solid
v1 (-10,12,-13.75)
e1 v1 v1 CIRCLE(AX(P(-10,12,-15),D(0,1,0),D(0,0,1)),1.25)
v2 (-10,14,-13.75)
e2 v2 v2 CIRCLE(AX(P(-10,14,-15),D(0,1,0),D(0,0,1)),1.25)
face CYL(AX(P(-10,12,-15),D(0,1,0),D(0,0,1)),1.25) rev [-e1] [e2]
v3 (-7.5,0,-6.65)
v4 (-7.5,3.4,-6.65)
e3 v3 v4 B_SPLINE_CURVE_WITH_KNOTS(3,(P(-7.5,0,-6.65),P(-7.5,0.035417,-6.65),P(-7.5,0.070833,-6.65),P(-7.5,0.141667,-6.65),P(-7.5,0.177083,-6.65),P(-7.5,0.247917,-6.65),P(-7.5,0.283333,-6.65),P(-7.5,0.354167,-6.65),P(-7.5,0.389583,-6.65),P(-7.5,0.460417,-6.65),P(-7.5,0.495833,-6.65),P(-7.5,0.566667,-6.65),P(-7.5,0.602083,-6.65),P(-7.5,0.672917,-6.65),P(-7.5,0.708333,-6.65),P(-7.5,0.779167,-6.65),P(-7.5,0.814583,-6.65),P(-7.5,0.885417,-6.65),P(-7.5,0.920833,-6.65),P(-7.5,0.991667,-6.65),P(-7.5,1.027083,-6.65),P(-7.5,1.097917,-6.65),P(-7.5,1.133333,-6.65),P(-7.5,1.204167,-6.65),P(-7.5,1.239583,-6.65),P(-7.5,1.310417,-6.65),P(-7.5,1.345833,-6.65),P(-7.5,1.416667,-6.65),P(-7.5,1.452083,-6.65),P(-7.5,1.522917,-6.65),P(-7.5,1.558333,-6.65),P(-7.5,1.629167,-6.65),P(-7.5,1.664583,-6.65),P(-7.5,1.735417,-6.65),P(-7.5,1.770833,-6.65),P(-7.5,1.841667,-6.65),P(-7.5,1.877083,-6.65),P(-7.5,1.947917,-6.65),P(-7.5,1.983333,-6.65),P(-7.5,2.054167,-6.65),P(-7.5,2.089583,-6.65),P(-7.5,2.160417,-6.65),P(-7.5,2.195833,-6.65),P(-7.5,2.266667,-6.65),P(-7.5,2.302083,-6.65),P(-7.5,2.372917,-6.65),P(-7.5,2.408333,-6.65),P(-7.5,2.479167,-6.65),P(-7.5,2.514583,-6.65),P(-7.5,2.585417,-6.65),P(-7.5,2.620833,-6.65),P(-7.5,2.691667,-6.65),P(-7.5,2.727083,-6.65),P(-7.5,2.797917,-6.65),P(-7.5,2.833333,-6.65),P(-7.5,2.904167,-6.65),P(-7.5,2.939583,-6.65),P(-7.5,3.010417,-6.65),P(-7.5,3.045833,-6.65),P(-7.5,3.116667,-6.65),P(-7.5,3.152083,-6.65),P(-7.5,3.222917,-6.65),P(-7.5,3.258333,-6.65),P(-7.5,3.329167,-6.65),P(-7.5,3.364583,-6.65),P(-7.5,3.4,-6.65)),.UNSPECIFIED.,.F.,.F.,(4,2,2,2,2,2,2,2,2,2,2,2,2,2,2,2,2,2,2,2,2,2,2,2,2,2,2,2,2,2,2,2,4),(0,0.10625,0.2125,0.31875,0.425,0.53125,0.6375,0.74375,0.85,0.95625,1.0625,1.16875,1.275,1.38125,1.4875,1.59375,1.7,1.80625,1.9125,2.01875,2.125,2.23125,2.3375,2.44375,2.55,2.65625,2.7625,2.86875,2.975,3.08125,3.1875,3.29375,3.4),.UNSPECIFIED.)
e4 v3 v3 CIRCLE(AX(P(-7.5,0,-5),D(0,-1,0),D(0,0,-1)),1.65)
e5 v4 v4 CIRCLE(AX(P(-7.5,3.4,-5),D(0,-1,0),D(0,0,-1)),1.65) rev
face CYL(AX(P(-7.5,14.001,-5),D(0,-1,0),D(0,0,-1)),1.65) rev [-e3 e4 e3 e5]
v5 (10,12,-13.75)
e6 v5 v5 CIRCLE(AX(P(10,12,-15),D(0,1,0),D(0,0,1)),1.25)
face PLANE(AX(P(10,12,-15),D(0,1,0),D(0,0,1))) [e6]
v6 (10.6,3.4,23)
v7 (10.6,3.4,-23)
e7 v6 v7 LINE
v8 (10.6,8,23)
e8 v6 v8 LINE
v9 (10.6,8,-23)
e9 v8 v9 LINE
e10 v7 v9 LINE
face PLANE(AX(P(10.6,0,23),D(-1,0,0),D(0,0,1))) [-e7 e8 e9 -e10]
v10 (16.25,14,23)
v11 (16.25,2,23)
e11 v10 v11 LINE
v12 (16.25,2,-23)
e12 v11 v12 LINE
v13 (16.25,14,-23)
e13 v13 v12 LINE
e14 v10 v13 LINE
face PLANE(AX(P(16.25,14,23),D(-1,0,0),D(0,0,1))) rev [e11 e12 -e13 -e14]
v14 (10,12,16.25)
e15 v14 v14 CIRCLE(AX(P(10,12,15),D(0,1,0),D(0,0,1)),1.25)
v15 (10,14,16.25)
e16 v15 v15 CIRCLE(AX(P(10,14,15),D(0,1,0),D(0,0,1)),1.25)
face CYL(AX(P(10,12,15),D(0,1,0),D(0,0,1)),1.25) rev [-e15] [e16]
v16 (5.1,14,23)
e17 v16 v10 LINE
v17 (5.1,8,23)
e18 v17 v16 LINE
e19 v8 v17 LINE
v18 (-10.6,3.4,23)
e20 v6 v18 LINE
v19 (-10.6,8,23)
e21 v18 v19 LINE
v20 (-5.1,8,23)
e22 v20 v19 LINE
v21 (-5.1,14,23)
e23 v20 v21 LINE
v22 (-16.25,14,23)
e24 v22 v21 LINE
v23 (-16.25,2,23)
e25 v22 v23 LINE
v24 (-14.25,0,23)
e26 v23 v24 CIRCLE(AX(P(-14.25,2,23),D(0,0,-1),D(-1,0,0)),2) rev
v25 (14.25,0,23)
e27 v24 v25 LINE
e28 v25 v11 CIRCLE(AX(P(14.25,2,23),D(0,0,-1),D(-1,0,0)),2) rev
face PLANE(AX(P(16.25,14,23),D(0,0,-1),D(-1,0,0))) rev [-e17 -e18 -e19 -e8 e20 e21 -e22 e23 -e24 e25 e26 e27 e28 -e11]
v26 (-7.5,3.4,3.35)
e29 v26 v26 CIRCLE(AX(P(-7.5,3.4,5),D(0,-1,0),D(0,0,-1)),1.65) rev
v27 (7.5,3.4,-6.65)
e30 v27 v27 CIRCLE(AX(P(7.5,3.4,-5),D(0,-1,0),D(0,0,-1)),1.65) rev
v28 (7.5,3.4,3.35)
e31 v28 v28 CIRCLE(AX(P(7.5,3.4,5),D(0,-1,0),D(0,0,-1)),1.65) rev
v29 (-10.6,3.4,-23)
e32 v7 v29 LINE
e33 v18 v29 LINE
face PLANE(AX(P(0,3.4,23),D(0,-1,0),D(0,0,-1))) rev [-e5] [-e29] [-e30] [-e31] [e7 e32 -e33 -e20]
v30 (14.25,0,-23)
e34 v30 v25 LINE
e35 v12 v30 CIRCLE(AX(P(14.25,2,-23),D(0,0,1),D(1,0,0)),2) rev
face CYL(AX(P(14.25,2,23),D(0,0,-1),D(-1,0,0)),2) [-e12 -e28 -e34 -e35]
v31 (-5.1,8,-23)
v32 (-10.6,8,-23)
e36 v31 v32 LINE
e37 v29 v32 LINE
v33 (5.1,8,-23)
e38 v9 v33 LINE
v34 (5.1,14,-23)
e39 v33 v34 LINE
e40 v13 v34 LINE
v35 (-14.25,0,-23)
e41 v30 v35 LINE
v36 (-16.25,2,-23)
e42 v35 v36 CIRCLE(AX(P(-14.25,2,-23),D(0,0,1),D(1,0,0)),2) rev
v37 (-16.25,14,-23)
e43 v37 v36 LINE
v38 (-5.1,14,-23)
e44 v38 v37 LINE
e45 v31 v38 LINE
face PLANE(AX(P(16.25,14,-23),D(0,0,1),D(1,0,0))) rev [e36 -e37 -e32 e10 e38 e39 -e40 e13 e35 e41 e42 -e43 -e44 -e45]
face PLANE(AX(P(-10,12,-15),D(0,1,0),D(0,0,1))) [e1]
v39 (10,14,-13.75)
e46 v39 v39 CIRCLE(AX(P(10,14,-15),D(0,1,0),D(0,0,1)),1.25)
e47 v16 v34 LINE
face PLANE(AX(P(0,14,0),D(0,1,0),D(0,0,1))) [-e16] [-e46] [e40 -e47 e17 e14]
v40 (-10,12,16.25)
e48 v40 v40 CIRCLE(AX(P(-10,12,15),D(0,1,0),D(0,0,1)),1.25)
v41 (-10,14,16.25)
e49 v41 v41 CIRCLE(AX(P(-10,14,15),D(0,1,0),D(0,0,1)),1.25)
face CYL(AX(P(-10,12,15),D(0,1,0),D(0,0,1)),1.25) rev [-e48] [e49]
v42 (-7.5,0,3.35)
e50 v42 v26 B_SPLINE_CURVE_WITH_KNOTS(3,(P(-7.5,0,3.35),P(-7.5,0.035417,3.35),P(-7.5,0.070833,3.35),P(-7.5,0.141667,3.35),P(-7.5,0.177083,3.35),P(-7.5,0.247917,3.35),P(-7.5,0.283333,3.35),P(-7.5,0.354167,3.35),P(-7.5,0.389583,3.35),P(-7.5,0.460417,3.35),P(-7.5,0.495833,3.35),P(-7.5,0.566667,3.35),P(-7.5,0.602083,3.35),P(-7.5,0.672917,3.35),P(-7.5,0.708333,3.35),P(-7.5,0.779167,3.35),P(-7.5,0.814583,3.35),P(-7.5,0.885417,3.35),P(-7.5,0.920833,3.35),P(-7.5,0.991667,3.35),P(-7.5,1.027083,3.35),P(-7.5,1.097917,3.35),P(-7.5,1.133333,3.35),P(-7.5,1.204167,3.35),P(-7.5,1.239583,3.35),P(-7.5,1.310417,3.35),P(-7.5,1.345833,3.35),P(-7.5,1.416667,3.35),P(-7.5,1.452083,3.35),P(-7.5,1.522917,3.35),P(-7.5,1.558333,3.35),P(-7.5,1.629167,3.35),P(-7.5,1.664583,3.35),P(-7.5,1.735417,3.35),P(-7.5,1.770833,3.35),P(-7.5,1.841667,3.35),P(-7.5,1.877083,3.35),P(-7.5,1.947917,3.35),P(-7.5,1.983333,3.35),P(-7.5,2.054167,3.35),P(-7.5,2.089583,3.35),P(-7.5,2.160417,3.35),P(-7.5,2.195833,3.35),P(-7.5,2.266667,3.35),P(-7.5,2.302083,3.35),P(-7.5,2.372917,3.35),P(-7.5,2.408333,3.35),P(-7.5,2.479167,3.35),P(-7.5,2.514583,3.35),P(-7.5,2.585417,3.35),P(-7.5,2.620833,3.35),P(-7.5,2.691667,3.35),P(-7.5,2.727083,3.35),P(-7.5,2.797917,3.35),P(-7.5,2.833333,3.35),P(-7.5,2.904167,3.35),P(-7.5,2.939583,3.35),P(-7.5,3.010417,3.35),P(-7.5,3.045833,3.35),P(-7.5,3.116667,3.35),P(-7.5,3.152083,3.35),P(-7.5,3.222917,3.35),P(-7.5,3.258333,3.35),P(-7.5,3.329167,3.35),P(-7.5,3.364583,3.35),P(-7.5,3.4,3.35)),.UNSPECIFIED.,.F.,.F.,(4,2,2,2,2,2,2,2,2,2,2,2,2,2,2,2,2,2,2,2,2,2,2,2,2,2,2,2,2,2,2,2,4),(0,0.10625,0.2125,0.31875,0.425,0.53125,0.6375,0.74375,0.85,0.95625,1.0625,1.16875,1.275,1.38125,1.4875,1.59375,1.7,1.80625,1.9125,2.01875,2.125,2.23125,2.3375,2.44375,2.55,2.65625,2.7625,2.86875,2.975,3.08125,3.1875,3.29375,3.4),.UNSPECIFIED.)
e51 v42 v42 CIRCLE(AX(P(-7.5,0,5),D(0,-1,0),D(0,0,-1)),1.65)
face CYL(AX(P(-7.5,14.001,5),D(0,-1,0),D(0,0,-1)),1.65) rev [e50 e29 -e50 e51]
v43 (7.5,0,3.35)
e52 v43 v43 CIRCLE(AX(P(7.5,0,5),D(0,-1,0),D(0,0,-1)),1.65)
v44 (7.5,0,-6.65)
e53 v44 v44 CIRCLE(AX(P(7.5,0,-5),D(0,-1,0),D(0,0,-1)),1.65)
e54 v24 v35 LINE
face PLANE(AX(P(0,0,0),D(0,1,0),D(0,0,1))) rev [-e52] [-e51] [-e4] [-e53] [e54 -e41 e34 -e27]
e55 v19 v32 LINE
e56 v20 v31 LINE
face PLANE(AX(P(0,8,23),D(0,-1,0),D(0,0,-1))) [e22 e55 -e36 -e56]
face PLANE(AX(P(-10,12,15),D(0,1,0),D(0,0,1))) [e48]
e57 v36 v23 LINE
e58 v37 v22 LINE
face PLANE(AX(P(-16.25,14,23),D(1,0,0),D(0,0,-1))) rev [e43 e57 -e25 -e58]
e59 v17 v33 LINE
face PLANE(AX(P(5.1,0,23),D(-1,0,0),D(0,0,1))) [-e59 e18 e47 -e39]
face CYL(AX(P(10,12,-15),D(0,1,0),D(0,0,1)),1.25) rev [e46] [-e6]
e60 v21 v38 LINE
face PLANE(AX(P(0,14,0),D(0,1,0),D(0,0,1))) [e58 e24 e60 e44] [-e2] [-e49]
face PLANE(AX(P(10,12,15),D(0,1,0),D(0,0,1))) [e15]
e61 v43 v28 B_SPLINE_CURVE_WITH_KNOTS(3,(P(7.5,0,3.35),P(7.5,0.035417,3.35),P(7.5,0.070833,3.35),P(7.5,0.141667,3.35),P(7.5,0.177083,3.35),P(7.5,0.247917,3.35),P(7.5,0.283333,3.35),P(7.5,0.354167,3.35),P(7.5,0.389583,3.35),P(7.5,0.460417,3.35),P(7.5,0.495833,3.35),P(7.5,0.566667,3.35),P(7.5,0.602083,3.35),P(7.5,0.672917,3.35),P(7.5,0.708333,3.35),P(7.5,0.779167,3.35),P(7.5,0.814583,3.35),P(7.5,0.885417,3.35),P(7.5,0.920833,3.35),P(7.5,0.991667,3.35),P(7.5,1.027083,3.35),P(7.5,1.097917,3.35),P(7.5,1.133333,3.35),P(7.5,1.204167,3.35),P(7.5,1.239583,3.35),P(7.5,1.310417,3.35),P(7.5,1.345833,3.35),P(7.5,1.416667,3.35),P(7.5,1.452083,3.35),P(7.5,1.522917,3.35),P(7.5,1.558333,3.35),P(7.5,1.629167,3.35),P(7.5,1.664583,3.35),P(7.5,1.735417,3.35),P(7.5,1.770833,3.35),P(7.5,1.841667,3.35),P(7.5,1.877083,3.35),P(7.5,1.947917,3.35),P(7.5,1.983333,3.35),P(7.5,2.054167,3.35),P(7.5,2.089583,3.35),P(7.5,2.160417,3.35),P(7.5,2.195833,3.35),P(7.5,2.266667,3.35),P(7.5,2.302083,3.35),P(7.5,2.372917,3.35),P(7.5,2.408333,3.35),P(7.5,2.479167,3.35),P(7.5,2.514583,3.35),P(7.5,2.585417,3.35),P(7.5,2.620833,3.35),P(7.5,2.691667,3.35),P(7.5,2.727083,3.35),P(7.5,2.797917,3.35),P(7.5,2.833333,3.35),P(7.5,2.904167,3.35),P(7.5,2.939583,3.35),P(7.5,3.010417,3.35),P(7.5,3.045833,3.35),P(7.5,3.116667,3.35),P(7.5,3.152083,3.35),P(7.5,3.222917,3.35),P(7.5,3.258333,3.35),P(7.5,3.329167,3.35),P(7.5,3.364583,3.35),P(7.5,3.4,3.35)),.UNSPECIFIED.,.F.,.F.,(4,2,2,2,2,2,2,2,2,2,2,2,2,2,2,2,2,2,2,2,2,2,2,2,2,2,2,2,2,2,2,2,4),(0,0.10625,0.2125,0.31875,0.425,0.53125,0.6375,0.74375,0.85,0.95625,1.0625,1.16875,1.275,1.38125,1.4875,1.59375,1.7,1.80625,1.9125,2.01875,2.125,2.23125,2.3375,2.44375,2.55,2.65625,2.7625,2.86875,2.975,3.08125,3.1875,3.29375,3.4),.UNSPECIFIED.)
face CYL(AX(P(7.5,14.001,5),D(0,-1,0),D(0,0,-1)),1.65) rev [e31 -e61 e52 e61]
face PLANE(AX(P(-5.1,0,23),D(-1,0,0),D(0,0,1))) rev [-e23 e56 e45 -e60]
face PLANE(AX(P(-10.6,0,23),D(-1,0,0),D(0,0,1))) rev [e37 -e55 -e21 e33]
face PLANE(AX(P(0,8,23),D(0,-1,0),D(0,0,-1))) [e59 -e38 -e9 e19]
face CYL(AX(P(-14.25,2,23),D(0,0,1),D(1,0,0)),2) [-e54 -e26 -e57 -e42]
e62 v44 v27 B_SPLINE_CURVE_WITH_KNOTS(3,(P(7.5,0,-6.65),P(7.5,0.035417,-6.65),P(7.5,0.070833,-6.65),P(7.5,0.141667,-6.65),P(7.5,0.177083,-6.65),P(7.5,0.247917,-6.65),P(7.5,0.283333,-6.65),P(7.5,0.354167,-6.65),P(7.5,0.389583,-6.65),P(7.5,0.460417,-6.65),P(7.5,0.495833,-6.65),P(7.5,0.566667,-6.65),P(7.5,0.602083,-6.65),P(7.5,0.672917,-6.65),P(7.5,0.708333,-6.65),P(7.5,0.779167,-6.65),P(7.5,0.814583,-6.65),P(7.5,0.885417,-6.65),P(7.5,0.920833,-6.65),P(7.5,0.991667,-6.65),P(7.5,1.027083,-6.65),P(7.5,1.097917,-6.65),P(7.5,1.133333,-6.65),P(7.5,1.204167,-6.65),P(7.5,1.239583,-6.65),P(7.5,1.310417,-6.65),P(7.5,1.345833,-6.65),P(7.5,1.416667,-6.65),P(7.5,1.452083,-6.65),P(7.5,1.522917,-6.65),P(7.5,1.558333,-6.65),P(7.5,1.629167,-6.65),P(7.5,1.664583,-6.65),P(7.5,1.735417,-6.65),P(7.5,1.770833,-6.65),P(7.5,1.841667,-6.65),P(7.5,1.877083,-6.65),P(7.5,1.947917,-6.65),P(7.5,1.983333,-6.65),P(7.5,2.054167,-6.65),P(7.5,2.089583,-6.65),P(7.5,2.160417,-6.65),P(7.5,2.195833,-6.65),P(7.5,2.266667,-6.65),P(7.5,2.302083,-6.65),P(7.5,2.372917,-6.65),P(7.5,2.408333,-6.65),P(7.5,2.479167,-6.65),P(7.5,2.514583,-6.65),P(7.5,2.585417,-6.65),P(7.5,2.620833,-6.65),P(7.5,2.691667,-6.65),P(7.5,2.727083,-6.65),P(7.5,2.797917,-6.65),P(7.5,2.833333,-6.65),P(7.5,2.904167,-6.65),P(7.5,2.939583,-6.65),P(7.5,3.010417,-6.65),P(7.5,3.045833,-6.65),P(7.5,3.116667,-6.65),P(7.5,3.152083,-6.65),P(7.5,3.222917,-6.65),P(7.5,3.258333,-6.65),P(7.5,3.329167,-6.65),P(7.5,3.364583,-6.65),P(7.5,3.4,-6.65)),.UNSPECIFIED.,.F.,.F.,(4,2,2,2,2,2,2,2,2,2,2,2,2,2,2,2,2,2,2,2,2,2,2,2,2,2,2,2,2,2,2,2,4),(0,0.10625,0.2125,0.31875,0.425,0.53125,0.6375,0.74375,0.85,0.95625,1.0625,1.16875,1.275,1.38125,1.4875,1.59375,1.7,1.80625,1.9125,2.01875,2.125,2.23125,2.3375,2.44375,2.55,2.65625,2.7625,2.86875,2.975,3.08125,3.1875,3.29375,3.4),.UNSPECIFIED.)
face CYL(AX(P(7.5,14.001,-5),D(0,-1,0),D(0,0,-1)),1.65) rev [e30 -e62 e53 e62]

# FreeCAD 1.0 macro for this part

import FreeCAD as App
import Part
import Sketcher
from FreeCAD import Vector


def edges_at(feature, points):
    """Names of the edges that pass closest to the given points."""
    edges = feature.Shape.Edges
    near = lambda p: min(range(len(edges)), key=lambda i: edges[i].distToShape(Part.Vertex(*p))[0])
    return sorted({f"Edge{near(p) + 1}" for p in points})

doc = App.newDocument("Part")
body = doc.addObject("PartDesign::Body", "Body")

# Sketch on XZ plane
sketch1 = body.newObject("Sketcher::SketchObject", "Sketch")
sketch1.AttachmentSupport = (doc.getObject("XZ_Plane"), [""])
sketch1.MapMode = "FlatFace"
sketch1.addGeometry([
    Part.LineSegment(Vector(-16, -23, 0), Vector(-16, 23, 0)),
    Part.LineSegment(Vector(-16, 23, 0), Vector(16, 23, 0)),
    Part.LineSegment(Vector(16, 23, 0), Vector(16, -23, 0)),
    Part.LineSegment(Vector(16, -23, 0), Vector(-16, -23, 0)),
], False)
sketch1.addConstraint([
    Sketcher.Constraint("Coincident", 0, 2, 1, 1),
    Sketcher.Constraint("Coincident", 1, 2, 2, 1),
    Sketcher.Constraint("Coincident", 2, 2, 3, 1),
    Sketcher.Constraint("Coincident", 3, 2, 0, 1),
    Sketcher.Constraint("Vertical", 0),
    Sketcher.Constraint("Horizontal", 1),
    Sketcher.Constraint("Vertical", 2),
    Sketcher.Constraint("Horizontal", 3),
    Sketcher.Constraint("Symmetric", 0, 2, 2, 2, -1, 1),
    Sketcher.Constraint("DistanceY", 0, 1, 0, 2, 46.0),
    Sketcher.Constraint("DistanceX", 1, 1, 1, 2, 32.5),
])
pad1 = body.newObject("PartDesign::Pad", "Pad")
pad1.Profile = sketch1
pad1.Length = 14
pad1.Reversed = True

# Sketch on XY plane
sketch2 = body.newObject("Sketcher::SketchObject", "Sketch001")
sketch2.AttachmentSupport = (doc.getObject("XY_Plane"), [""])
sketch2.MapMode = "FlatFace"
sketch2.AttachmentOffset = App.Placement(Vector(0, 0, -23), App.Rotation())
sketch2.addGeometry([
    Part.LineSegment(Vector(5.1, 14, 0), Vector(5.1, 8, 0)),  # 0
    Part.LineSegment(Vector(5.1, 8, 0), Vector(10.6, 8, 0)),  # 1
    Part.LineSegment(Vector(10.6, 8, 0), Vector(10.6, 3.4, 0)),  # 2
    Part.LineSegment(Vector(10.6, 3.4, 0), Vector(-10.6, 3.4, 0)),  # 3
    Part.LineSegment(Vector(-10.6, 3.4, 0), Vector(-10.6, 8, 0)),  # 4
    Part.LineSegment(Vector(-10.6, 8, 0), Vector(-5.1, 8, 0)),  # 5
    Part.LineSegment(Vector(-5.1, 8, 0), Vector(-5.1, 14, 0)),  # 6
    Part.LineSegment(Vector(-5.1, 14, 0), Vector(5.1, 14, 0)),  # 7
], False)
sketch2.addConstraint([
    Sketcher.Constraint("Coincident", 0, 2, 1, 1),
    Sketcher.Constraint("Coincident", 1, 2, 2, 1),
    Sketcher.Constraint("Coincident", 2, 2, 3, 1),
    Sketcher.Constraint("Coincident", 3, 2, 4, 1),
    Sketcher.Constraint("Coincident", 4, 2, 5, 1),
    Sketcher.Constraint("Coincident", 5, 2, 6, 1),
    Sketcher.Constraint("Coincident", 6, 2, 7, 1),
    Sketcher.Constraint("Coincident", 7, 2, 0, 1),
    Sketcher.Constraint("Vertical", 0),
    Sketcher.Constraint("Horizontal", 1),
    Sketcher.Constraint("Vertical", 2),
    Sketcher.Constraint("Horizontal", 3),
    Sketcher.Constraint("Vertical", 4),
    Sketcher.Constraint("Horizontal", 5),
    Sketcher.Constraint("Vertical", 6),
    Sketcher.Constraint("Horizontal", 7),
    Sketcher.Constraint("Symmetric", 1, 2, 4, 2, -2),
    Sketcher.Constraint("Equal", 1, 5),
    Sketcher.Constraint("DistanceY", 0, 2, 0, 1, 6.0),
    Sketcher.Constraint("DistanceX", 1, 1, 1, 2, 5.5),
    Sketcher.Constraint("DistanceX", 3, 2, 3, 1, 21.2),
    Sketcher.Constraint("DistanceY", 2, 2, 2, 1, 4.6),
    Sketcher.Constraint("DistanceY", -1, 1, 0, 2, 8.0),
])
pocket1 = body.newObject("PartDesign::Pocket", "Pocket")
pocket1.Profile = sketch2
pocket1.Type = "ThroughAll"
pocket1.Reversed = True

# Sketch on XZ plane
sketch3 = body.newObject("Sketcher::SketchObject", "Sketch002")
sketch3.AttachmentSupport = (doc.getObject("XZ_Plane"), [""])
sketch3.MapMode = "FlatFace"
sketch3.addGeometry(Part.Circle(Vector(-7.5, 5, 0), Vector(0, 0, 1), 1.6), False)
sketch3.addConstraint([
    Sketcher.Constraint("Diameter", 0, 3.3),
    Sketcher.Constraint("DistanceY", -1, 1, 0, 3, 5.0),
    Sketcher.Constraint("DistanceX", 0, 3, -1, 1, 7.5),
])
pocket2 = body.newObject("PartDesign::Pocket", "Pocket001")
pocket2.Profile = sketch3
pocket2.Type = "UpToFirst"

# Sketch on XZ plane
sketch4 = body.newObject("Sketcher::SketchObject", "Sketch003")
sketch4.AttachmentSupport = (doc.getObject("XZ_Plane"), [""])
sketch4.MapMode = "FlatFace"
sketch4.addGeometry(Part.Circle(Vector(7.5, 5, 0), Vector(0, 0, 1), 1.6), False)
sketch4.addConstraint([
    Sketcher.Constraint("Diameter", 0, 3.3),
    Sketcher.Constraint("DistanceY", -1, 1, 0, 3, 5.0),
    Sketcher.Constraint("DistanceX", -1, 1, 0, 3, 7.5),
])
pocket3 = body.newObject("PartDesign::Pocket", "Pocket002")
pocket3.Profile = sketch4
pocket3.Type = "UpToFirst"

# Sketch on XZ plane
sketch5 = body.newObject("Sketcher::SketchObject", "Sketch004")
sketch5.AttachmentSupport = (doc.getObject("XZ_Plane"), [""])
sketch5.MapMode = "FlatFace"
sketch5.addGeometry(Part.Circle(Vector(7.5, -5, 0), Vector(0, 0, 1), 1.6), False)
sketch5.addConstraint([
    Sketcher.Constraint("Diameter", 0, 3.3),
    Sketcher.Constraint("DistanceY", 0, 3, -1, 1, 5.0),
    Sketcher.Constraint("DistanceX", -1, 1, 0, 3, 7.5),
])
pocket4 = body.newObject("PartDesign::Pocket", "Pocket003")
pocket4.Profile = sketch5
pocket4.Type = "UpToFirst"

# Sketch on XZ plane
sketch6 = body.newObject("Sketcher::SketchObject", "Sketch005")
sketch6.AttachmentSupport = (doc.getObject("XZ_Plane"), [""])
sketch6.MapMode = "FlatFace"
sketch6.addGeometry(Part.Circle(Vector(-7.5, -5, 0), Vector(0, 0, 1), 1.6), False)
sketch6.addConstraint([
    Sketcher.Constraint("Diameter", 0, 3.3),
    Sketcher.Constraint("DistanceY", 0, 3, -1, 1, 5.0),
    Sketcher.Constraint("DistanceX", 0, 3, -1, 1, 7.5),
])
pocket5 = body.newObject("PartDesign::Pocket", "Pocket004")
pocket5.Profile = sketch6
pocket5.Type = "UpToFirst"

# Sketch on XZ plane
sketch7 = body.newObject("Sketcher::SketchObject", "Sketch006")
sketch7.AttachmentSupport = (doc.getObject("XZ_Plane"), [""])
sketch7.MapMode = "FlatFace"
sketch7.AttachmentOffset = App.Placement(Vector(0, 0, -14), App.Rotation())
sketch7.addGeometry([
    Part.Circle(Vector(-10, -15, 0), Vector(0, 0, 1), 1.2),
    Part.Circle(Vector(10, -15, 0), Vector(0, 0, 1), 1.2),
    Part.Circle(Vector(10, 15, 0), Vector(0, 0, 1), 1.2),
    Part.Circle(Vector(-10, 15, 0), Vector(0, 0, 1), 1.2),
], False)
sketch7.addConstraint([
    Sketcher.Constraint("Equal", 0, 1),
    Sketcher.Constraint("Equal", 1, 2),
    Sketcher.Constraint("Equal", 2, 3),
    Sketcher.Constraint("Symmetric", 0, 3, 2, 3, -1, 1),
    Sketcher.Constraint("Symmetric", 1, 3, 3, 3, -1, 1),
    Sketcher.Constraint("Symmetric", 0, 3, 1, 3, -2),
    Sketcher.Constraint("Diameter", 0, 2.5),
    Sketcher.Constraint("DistanceX", 0, 3, -1, 1, 10.0),
    Sketcher.Constraint("DistanceY", 0, 3, -1, 1, 15.0),
])
pocket6 = body.newObject("PartDesign::Pocket", "Pocket005")
pocket6.Profile = sketch7
pocket6.Length = 2
pocket6.Reversed = True
doc.recompute()

fillet = body.newObject("PartDesign::Fillet", "Fillet")
fillet.Base = (pocket6, edges_at(pocket6, [(16.25, 0, 0), (-16.25, 0, 0)]))
fillet.Radius = 2

doc.recompute()
